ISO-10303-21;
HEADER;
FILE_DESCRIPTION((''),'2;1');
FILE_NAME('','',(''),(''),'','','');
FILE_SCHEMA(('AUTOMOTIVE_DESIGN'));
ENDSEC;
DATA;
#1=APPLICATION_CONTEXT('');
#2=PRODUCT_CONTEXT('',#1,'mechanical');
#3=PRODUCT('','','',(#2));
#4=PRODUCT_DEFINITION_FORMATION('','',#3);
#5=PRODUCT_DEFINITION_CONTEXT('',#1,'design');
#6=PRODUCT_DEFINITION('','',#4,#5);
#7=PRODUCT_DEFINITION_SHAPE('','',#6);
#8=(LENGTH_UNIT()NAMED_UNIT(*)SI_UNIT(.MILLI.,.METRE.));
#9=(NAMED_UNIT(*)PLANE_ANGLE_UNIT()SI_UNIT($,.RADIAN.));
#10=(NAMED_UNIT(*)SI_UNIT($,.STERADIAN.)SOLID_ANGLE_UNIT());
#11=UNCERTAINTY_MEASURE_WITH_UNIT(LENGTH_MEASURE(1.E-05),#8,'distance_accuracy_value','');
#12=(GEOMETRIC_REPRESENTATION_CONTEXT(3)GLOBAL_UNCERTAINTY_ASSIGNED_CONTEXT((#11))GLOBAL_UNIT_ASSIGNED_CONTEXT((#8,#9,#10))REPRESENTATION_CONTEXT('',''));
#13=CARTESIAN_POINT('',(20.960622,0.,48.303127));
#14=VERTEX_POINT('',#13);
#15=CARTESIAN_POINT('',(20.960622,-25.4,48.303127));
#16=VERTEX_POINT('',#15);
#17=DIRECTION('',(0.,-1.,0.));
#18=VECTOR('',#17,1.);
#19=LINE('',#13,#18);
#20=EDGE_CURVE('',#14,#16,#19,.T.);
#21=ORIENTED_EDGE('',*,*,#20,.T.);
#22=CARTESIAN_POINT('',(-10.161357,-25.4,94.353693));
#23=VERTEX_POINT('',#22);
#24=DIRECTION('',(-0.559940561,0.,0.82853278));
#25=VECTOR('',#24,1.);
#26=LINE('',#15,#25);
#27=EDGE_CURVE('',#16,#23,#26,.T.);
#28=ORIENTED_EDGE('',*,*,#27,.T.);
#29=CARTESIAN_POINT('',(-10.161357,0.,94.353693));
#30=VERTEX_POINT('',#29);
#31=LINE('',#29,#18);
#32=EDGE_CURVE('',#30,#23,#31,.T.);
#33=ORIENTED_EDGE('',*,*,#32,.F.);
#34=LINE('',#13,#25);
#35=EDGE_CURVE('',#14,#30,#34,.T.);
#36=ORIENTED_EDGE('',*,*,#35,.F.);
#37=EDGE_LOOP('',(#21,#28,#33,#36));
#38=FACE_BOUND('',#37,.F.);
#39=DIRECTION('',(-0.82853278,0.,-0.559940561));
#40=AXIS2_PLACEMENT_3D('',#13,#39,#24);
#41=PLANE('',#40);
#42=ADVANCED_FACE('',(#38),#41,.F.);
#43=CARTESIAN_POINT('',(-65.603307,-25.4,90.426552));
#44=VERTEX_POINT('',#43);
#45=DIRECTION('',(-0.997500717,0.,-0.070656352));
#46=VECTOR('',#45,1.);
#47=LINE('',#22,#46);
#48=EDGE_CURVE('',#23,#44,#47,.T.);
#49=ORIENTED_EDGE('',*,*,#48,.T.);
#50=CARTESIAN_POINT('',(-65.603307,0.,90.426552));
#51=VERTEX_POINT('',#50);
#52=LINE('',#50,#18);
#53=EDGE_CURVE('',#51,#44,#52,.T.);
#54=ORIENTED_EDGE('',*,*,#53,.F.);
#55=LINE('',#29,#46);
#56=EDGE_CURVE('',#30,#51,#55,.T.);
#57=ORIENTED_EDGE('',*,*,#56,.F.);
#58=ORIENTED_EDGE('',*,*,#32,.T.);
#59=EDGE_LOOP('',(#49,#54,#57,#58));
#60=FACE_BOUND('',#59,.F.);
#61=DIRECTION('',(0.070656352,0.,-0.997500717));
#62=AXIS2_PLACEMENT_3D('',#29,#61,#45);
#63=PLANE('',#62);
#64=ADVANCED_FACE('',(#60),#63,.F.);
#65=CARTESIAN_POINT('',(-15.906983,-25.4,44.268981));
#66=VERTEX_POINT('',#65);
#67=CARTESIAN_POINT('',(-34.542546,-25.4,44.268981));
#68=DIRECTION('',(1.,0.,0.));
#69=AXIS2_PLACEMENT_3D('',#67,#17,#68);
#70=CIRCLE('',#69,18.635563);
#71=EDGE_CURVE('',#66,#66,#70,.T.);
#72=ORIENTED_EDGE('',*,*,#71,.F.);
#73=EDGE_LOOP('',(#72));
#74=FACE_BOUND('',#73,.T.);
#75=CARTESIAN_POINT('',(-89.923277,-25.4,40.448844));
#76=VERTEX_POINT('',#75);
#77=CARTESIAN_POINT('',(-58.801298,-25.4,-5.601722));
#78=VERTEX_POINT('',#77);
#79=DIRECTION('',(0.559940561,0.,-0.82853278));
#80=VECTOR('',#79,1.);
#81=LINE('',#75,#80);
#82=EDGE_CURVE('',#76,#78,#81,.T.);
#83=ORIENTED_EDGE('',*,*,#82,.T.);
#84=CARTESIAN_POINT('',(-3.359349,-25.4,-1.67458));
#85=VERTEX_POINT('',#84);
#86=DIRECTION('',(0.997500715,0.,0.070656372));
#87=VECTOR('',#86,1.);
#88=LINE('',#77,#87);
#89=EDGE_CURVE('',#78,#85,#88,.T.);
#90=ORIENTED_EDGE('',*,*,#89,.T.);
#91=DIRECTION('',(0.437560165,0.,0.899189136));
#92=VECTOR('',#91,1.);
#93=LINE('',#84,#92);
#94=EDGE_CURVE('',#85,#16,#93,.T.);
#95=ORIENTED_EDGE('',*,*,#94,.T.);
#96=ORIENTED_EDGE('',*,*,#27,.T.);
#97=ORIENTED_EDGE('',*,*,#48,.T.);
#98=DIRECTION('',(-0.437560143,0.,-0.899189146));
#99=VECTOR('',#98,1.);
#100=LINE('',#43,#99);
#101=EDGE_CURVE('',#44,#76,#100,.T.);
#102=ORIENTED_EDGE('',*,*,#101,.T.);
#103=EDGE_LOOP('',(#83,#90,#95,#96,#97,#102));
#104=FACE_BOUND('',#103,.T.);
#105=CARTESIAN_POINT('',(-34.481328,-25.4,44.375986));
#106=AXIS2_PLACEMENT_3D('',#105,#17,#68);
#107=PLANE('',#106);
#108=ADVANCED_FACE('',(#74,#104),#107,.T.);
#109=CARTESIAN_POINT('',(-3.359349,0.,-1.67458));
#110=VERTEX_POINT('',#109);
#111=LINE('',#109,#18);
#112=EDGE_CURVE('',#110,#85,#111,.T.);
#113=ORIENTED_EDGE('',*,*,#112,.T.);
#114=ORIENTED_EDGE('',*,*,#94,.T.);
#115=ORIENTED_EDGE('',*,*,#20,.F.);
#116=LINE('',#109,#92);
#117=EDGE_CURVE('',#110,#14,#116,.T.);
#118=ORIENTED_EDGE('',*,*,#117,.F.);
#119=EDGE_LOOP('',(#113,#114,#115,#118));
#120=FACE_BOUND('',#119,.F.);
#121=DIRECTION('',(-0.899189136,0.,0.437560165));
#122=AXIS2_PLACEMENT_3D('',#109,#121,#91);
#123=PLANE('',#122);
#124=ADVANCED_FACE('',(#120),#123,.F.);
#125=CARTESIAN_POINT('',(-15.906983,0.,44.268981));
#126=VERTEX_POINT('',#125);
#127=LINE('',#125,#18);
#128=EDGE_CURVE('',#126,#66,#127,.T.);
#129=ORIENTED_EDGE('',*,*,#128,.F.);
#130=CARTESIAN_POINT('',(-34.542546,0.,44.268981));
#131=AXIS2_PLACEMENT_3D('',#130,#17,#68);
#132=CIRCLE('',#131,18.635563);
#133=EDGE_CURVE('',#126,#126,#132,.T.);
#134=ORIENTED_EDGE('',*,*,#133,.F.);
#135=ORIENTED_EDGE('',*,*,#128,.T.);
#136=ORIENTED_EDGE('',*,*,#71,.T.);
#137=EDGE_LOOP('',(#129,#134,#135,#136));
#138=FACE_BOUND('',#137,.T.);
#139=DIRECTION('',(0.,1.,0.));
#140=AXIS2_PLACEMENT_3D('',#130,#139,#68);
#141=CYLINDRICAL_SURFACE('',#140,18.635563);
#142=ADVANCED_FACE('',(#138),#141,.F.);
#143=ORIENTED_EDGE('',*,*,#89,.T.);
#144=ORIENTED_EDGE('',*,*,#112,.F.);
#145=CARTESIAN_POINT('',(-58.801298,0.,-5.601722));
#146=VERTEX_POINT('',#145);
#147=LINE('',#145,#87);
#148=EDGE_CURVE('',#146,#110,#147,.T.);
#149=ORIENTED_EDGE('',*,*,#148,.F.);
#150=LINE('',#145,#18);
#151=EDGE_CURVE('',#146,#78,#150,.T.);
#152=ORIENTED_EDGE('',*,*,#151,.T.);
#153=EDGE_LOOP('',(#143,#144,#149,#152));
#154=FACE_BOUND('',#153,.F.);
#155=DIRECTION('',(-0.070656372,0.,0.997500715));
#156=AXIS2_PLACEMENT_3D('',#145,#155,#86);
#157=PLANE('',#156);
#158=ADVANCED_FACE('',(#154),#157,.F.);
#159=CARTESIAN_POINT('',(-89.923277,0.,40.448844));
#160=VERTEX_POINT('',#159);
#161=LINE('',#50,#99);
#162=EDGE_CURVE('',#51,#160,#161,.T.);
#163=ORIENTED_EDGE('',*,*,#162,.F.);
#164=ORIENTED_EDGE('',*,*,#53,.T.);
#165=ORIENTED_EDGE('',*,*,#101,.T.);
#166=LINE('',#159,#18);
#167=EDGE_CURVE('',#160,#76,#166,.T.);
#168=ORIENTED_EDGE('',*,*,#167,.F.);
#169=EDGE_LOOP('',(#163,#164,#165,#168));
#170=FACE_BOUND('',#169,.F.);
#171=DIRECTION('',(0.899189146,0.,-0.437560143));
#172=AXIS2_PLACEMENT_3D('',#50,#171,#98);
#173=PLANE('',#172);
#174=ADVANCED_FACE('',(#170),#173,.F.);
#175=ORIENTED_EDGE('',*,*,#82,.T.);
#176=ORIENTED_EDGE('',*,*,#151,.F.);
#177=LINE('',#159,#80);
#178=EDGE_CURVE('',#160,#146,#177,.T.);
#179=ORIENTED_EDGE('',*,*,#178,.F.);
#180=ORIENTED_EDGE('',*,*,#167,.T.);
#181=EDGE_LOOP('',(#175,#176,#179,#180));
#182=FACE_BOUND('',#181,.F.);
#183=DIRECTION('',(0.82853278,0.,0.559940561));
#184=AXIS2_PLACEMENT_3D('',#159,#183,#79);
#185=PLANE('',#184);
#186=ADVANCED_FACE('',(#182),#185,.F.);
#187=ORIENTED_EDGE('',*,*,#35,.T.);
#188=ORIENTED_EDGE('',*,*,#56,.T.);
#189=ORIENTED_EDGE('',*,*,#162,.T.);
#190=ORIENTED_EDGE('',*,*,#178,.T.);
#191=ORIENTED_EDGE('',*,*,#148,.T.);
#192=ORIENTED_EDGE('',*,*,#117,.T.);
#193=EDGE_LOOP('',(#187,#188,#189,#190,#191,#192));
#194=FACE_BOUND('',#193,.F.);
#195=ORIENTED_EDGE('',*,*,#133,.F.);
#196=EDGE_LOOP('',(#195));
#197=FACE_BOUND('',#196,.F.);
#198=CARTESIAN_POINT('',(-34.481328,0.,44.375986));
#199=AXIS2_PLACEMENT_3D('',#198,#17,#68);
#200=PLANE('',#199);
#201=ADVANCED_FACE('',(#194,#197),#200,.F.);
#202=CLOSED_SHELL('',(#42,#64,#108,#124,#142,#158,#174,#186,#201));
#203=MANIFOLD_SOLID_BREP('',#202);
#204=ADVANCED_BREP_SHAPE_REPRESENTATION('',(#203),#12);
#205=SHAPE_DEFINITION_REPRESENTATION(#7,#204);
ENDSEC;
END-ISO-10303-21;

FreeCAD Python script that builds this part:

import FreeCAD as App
import Part
import Sketcher
Q = App.Units.Quantity


def add_polygon(sketch, points):
    """Adds a closed chain of lines whose ends are joined by coincident constraints."""
    first, n = sketch.GeometryCount, len(points)
    for a, b in zip(points, points[1:] + points[:1]):
        sketch.addGeometry(Part.LineSegment(App.Vector(*a, 0), App.Vector(*b, 0)), False)
    for i in range(n):
        sketch.addConstraint(Sketcher.Constraint("Coincident", first + i, 2, first + (i + 1) % n, 1))

doc = App.newDocument("Part")
body = doc.addObject("PartDesign::Body", "Body")

sketch1 = body.newObject("Sketcher::SketchObject", "Sketch")
sketch1.AttachmentSupport = (doc.getObject("XZ_Plane"), [""])
sketch1.MapMode = "FlatFace"
add_polygon(sketch1, [(-58.801298, -5.601722), (-3.359349, -1.67458), (20.960622, 48.303127), (-10.161357, 94.353693), (-65.603307, 90.426552), (-89.923277, 40.448844)])
sketch1.addGeometry(Part.Circle(App.Vector(-34.542546, 44.268981, 0), App.Vector(0, 0, 1), 18.635563), False)
sketch1.addConstraint([
    Sketcher.Constraint("Diameter", 6, Q("37.271126 mm")),
    Sketcher.Constraint("DistanceX", 5, 2, -1, 1, Q("58.801298 mm")),
    Sketcher.Constraint("DistanceX", 4, 2, 1, 2, Q("110.883899 mm")),
    Sketcher.Constraint("Distance", 0, Q("55.580861 mm")),
    Sketcher.Constraint("Distance", 1, Q("55.580862 mm")),
    Sketcher.Constraint("Distance", 2, Q("55.580862 mm")),
    Sketcher.Constraint("Distance", 5, Q("55.580862 mm")),
    Sketcher.Constraint("DistanceY", -1, 1, 6, 3, Q("44.268981 mm")),
    Sketcher.Constraint("DistanceX", 0, 2, -1, 1, Q("3.359349 mm")),
    Sketcher.Constraint("DistanceY", 0, 2, -1, 1, Q("1.67458 mm")),
    Sketcher.Constraint("DistanceY", -1, 1, 3, 2, Q("90.426552 mm")),
    Sketcher.Constraint("DistanceX", 0, 2, 1, 2, Q("24.319971 mm")),
    Sketcher.Constraint("DistanceX", 6, 3, 1, 2, Q("55.503168 mm")),
    Sketcher.Constraint("DistanceX", 2, 2, 1, 2, Q("31.121979 mm")),
    Sketcher.Constraint("DistanceX", 3, 2, 2, 2, Q("55.44195 mm")),
])
pad1 = body.newObject("PartDesign::Pad", "Pad")
pad1.Profile = sketch1
pad1.Length = Q("1 in")

doc.recompute()
